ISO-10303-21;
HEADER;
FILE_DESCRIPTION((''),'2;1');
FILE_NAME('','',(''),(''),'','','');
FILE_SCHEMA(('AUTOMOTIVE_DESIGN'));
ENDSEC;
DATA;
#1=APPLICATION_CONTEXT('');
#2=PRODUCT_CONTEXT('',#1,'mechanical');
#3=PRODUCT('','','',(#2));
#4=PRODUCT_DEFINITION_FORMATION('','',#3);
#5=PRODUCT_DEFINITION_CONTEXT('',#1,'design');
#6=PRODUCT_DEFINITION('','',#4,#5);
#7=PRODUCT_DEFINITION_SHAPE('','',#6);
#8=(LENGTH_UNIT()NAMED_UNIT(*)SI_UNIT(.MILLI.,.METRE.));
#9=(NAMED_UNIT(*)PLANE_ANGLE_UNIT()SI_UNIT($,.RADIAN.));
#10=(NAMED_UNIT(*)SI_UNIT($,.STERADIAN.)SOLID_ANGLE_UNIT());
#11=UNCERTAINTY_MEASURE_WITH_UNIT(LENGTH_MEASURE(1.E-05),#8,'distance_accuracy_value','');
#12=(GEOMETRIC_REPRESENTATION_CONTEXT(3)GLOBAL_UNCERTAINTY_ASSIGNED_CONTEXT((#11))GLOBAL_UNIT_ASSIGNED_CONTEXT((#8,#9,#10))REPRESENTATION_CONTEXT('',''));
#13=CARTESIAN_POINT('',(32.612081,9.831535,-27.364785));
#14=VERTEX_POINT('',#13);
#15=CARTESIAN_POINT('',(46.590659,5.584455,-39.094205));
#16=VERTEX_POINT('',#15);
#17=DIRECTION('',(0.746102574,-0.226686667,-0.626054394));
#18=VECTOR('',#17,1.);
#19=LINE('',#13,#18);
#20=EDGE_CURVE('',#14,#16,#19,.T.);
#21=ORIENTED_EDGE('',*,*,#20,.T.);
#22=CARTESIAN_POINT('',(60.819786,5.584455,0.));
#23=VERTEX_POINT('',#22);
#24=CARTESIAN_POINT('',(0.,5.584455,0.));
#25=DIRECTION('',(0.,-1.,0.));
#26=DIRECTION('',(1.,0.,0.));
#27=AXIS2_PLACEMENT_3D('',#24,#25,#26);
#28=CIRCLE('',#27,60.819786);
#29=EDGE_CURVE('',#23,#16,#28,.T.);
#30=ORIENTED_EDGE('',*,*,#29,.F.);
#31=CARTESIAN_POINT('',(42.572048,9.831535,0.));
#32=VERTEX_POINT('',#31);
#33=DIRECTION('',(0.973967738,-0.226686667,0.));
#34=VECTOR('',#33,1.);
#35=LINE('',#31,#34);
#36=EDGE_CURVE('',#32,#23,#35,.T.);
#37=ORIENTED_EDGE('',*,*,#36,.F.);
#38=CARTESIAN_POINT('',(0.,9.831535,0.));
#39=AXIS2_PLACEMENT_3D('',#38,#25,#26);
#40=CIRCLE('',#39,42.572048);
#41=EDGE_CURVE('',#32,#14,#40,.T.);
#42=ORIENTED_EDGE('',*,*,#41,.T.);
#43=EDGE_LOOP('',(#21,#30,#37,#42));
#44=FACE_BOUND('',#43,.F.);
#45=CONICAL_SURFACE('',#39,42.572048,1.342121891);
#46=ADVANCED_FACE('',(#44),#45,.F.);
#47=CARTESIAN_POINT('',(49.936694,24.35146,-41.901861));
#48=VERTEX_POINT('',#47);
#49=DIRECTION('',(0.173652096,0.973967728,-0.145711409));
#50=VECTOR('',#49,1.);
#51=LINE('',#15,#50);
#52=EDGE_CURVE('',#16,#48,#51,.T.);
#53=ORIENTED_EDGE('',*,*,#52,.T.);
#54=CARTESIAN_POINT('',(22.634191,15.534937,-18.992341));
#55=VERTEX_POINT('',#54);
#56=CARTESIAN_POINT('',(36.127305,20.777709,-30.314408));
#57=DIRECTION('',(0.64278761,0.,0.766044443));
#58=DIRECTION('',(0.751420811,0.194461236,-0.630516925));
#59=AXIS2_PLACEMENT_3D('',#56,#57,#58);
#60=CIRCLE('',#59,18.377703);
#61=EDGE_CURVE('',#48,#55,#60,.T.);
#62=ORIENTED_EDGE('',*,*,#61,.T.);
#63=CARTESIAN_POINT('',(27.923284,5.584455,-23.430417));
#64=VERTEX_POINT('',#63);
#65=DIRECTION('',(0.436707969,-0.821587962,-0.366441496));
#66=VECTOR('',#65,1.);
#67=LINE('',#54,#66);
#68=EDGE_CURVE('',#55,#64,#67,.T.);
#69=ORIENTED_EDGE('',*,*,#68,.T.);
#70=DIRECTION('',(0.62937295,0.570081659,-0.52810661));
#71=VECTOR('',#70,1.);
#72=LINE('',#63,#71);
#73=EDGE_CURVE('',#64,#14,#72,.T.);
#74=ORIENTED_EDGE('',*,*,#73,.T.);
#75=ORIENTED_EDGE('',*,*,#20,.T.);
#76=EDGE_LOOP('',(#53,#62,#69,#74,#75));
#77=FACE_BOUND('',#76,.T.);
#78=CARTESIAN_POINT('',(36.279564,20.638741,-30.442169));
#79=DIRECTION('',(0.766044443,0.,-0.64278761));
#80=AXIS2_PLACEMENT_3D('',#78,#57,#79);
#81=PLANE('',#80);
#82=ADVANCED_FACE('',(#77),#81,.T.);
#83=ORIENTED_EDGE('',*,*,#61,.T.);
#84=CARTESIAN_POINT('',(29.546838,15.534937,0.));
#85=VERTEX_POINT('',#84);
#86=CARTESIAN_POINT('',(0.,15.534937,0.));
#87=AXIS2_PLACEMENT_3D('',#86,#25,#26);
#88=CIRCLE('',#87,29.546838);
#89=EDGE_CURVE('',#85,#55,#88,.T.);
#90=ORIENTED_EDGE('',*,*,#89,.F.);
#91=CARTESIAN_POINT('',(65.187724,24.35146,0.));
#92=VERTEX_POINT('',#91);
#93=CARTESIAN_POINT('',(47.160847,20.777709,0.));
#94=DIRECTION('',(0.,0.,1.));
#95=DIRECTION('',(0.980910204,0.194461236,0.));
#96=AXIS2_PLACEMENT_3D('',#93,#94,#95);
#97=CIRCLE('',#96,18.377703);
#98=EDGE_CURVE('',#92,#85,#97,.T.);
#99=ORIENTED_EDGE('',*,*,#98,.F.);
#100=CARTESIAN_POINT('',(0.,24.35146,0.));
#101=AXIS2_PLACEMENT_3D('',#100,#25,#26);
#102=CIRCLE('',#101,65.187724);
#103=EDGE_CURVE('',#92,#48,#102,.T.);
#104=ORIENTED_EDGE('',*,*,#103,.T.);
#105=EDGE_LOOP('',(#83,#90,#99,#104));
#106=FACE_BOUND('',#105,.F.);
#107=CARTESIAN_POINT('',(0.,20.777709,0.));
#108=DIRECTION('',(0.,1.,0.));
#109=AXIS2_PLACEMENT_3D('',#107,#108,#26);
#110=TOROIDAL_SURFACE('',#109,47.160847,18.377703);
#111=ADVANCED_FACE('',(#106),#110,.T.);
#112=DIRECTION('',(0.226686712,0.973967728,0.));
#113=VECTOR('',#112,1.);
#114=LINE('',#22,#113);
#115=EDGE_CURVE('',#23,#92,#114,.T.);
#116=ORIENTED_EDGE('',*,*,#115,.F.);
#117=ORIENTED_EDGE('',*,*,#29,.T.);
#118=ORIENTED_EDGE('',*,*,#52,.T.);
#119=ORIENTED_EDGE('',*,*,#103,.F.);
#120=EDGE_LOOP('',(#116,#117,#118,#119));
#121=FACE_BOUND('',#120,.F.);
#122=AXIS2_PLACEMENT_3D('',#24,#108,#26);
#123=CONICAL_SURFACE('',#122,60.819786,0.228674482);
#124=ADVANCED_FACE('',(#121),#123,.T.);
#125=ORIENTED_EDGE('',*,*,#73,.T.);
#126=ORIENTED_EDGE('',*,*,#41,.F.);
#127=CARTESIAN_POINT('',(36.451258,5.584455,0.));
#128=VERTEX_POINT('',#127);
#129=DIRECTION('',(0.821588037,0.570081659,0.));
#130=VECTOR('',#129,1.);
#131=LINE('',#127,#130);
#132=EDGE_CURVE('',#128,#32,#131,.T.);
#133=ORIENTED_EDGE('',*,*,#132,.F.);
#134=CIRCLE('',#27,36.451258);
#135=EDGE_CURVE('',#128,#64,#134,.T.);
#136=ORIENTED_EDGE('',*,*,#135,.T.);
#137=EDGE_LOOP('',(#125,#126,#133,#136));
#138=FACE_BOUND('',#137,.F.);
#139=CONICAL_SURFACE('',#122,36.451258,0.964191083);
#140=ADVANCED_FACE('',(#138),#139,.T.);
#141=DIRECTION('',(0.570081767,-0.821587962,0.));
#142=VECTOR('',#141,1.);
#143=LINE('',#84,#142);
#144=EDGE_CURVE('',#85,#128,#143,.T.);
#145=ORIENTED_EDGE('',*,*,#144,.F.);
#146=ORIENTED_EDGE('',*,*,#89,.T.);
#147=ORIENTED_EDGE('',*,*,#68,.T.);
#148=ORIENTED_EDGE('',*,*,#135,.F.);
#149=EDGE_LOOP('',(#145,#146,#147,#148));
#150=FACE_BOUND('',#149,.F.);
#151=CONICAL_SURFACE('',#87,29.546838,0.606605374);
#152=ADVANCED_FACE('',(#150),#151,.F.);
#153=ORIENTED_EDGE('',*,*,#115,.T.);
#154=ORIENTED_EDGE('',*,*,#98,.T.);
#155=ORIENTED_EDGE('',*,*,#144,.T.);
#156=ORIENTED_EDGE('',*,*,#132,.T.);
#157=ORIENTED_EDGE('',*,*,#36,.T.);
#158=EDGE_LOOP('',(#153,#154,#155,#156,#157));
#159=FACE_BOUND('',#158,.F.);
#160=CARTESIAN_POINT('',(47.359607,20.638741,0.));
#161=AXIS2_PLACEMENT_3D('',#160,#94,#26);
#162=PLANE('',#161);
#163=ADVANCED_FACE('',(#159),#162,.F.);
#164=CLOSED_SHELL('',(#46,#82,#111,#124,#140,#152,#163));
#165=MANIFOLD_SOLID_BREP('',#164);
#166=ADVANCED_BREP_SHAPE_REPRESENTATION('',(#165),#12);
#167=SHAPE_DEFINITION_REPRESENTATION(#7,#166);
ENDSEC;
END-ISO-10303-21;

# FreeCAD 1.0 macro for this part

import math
import FreeCAD as App
import Part
import Sketcher

doc = App.newDocument("Part")
body = doc.addObject("PartDesign::Body", "Body")

sketch1 = body.newObject("Sketcher::SketchObject", "Sketch")
sketch1.AttachmentSupport = (doc.getObject("XY_Plane"), [""])
sketch1.MapMode = "FlatFace"
sketch1.addGeometry([
    Part.ArcOfCircle(Part.Circle(App.Vector(47, 21, 0), App.Vector(0, 0, 1), 18), math.radians(11), math.radians(197)),
    Part.LineSegment(App.Vector(30, 16, 0), App.Vector(36, 6, 0)),
    Part.LineSegment(App.Vector(36, 6, 0), App.Vector(43, 10, 0)),
    Part.LineSegment(App.Vector(43, 10, 0), App.Vector(61, 6, 0)),
    Part.LineSegment(App.Vector(61, 6, 0), App.Vector(65, 24, 0)),
], False)
sketch1.addConstraint([
    Sketcher.Constraint("Coincident", 0, 2, 1, 1),
    Sketcher.Constraint("Coincident", 1, 2, 2, 1),
    Sketcher.Constraint("Coincident", 2, 2, 3, 1),
    Sketcher.Constraint("Coincident", 3, 2, 4, 1),
    Sketcher.Constraint("Coincident", 4, 2, 0, 1),
    Sketcher.Constraint("Perpendicular", 1, 2),
    Sketcher.Constraint("Perpendicular", 3, 4),
    Sketcher.Constraint("Horizontal", 1, 2, 3, 2),
    Sketcher.Constraint("Radius", 0, 18.377703),
    Sketcher.Constraint("DistanceX", 2, 2, 0, 3, 4.588799),
    Sketcher.Constraint("Distance", 1, 12.11128),
    Sketcher.Constraint("Distance", 2, 7.44995),
    Sketcher.Constraint("Distance", 4, 19.268611),
    Sketcher.Constraint("DistanceY", -1, 1, 0, 3, 20.777709),
    Sketcher.Constraint("DistanceX", -1, 1, 0, 2, 29.546838),
    Sketcher.Constraint("DistanceX", -1, 1, 1, 2, 36.451258),
])
revolution = body.newObject("PartDesign::Revolution", "Revolution")
revolution.Profile = sketch1
revolution.ReferenceAxis = (sketch1, ["V_Axis"])
revolution.Angle = 320
revolution.Reversed = True

doc.recompute()
